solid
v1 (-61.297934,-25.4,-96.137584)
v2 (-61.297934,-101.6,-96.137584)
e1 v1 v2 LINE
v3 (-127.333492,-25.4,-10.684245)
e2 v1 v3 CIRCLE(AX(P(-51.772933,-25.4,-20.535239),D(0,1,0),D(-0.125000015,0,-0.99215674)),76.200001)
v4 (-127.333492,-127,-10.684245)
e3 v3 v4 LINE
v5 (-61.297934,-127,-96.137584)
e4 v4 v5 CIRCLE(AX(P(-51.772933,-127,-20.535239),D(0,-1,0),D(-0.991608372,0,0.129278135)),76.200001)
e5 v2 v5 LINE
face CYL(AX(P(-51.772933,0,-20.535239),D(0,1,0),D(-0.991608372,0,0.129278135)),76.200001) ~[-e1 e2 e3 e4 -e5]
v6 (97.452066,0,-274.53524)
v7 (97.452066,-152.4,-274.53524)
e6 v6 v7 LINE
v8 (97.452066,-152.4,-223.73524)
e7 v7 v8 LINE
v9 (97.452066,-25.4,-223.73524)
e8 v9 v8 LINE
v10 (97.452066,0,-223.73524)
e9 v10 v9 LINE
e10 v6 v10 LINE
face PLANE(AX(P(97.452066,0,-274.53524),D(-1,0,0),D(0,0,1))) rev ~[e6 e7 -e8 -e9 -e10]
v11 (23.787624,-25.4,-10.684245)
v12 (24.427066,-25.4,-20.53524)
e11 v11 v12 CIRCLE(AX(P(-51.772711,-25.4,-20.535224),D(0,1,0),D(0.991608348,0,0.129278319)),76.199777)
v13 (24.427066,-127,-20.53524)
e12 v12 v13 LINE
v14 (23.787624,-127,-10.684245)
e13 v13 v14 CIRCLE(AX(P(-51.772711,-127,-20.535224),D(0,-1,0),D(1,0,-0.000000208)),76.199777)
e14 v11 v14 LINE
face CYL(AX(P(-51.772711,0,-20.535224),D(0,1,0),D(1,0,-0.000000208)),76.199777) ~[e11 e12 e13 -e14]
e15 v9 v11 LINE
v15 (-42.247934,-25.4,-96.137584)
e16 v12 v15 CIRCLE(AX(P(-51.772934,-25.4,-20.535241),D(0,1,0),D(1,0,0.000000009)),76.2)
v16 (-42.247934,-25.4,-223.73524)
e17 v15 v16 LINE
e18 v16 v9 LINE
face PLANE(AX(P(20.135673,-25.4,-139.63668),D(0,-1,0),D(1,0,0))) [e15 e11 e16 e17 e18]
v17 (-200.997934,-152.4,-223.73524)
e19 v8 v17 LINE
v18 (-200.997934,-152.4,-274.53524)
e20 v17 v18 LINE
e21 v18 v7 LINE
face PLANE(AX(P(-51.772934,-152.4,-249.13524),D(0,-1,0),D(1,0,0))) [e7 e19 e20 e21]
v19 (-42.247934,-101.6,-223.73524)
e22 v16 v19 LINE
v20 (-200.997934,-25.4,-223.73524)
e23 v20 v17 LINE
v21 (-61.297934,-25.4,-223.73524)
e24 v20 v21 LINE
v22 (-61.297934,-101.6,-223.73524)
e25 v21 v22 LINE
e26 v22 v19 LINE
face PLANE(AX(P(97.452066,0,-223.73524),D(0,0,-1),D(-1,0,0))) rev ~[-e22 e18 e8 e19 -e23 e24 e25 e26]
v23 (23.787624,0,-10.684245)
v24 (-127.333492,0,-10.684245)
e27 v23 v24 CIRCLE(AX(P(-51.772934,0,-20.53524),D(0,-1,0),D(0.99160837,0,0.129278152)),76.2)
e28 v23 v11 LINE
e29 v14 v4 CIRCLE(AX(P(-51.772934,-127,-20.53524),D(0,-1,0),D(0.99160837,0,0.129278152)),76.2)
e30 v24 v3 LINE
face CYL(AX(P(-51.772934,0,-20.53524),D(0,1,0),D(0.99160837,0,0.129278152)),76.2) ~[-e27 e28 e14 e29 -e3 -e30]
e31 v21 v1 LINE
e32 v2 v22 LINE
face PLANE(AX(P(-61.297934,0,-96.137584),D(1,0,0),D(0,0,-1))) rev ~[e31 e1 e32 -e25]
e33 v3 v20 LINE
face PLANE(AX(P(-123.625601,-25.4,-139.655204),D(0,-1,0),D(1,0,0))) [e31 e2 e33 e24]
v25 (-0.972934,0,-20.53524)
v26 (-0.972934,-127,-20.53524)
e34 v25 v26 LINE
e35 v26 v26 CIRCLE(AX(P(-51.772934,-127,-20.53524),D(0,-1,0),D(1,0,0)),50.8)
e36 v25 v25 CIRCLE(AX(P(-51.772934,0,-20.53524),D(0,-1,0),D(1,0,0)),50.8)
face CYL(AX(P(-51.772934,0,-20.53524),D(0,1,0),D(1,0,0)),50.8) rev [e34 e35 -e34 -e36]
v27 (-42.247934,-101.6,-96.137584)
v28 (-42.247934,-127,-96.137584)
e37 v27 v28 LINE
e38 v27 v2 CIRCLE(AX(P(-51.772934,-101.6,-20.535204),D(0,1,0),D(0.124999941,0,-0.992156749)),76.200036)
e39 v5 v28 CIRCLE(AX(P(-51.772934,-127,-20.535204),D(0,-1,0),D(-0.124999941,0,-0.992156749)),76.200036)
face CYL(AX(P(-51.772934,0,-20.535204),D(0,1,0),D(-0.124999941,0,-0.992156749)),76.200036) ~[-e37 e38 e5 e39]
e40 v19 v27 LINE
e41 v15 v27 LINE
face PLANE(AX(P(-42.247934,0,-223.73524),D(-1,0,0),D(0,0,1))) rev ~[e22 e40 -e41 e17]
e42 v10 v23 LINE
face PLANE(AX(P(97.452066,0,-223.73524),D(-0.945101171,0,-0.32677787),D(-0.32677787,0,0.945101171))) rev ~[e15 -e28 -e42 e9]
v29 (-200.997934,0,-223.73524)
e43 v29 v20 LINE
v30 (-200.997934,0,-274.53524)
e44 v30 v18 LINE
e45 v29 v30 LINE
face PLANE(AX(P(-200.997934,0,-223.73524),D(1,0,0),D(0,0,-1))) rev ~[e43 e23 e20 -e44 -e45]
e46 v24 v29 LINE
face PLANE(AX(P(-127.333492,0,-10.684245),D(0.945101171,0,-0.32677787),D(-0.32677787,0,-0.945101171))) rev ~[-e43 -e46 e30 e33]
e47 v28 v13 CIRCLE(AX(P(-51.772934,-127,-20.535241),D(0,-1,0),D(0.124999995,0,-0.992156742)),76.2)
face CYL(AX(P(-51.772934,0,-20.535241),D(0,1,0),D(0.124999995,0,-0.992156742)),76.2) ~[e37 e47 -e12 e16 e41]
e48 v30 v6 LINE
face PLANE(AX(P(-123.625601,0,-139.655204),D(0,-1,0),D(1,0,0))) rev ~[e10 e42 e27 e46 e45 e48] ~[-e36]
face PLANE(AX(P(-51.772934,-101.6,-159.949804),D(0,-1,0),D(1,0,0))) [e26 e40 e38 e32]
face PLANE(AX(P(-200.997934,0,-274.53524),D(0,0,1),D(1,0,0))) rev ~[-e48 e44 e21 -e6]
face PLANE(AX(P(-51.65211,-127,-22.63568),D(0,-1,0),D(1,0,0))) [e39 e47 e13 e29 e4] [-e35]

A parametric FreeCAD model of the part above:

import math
import FreeCAD as App
import Part
import Sketcher
from FreeCAD import Vector
Q = App.Units.Quantity

doc = App.newDocument("Part")
params = doc.addObject("Spreadsheet::Sheet", "Params")
for row, (alias, value) in enumerate([
    ("sketch1_diameter", "4 in"),
    ("sketch1_radius", "3 in"),
    ("sketch1_radius2", "3 in"),
    ("pad1_length", "5 in"),
    ("sketch2_width", "0.75 in"),
    ("pad2_length", "4 in"),
    ("sketch3_height", "2 in"),
    ("sketch3_width", "11.75 in"),
    ("pad3_length", "6 in"),
    ("sketch4_radius", "3.0000001 in"),
    ("sketch4_width", "5.5 in"),
    ("pad4_length", "1 in"),
], start=1):
    params.set(f"A{row}", alias)
    params.set(f"B{row}", "=" + value)
    params.setAlias(f"B{row}", alias)

body = doc.addObject("PartDesign::Body", "Body")

# Sketch on XZ plane
sketch1 = doc.addObject("Sketcher::SketchObject", "Sketch")
body.addObject(sketch1)
sketch1.AttachmentSupport = (doc.XZ_Plane, [""])
sketch1.MapMode = "FlatFace"
sketch1.addGeometry(Part.ArcOfCircle(Part.Circle(Vector(-51.772934, -20.535241, 0), Vector(0, 0, 1), 76.2), math.radians(-82.819245), math.radians(0.000001)), False)
sketch1.addGeometry(Part.ArcOfCircle(Part.Circle(Vector(-51.772711, -20.535224, 0), Vector(0, 0, 1), 76.199777), math.radians(-0.000012), math.radians(7.427891)), False)
sketch1.addGeometry(Part.ArcOfCircle(Part.Circle(Vector(-51.772934, -20.53524, 0), Vector(0, 0, 1), 76.2), math.radians(7.427881), math.radians(172.572119)), False)
sketch1.addGeometry(Part.ArcOfCircle(Part.Circle(Vector(-51.772933, -20.535239, 0), Vector(0, 0, 1), 76.200001), math.radians(172.572119), math.radians(262.819243)), False)
sketch1.addGeometry(Part.ArcOfCircle(Part.Circle(Vector(-51.772934, -20.535204, 0), Vector(0, 0, 1), 76.200036), math.radians(-97.180752), math.radians(-82.819248)), False)
sketch1.addGeometry(Part.Circle(Vector(-51.772934, -20.53524, 0), Vector(0, 0, 1), 50.8), False)
sketch1.addConstraint(Sketcher.Constraint("Coincident", 0, 2, 1, 1))
sketch1.addConstraint(Sketcher.Constraint("Coincident", 1, 2, 2, 1))
sketch1.addConstraint(Sketcher.Constraint("Coincident", 2, 2, 3, 1))
sketch1.addConstraint(Sketcher.Constraint("Coincident", 3, 2, 4, 1))
sketch1.addConstraint(Sketcher.Constraint("Coincident", 4, 2, 0, 1))
sketch1.addConstraint(Sketcher.Constraint("Coincident", 2, 3, 0, 3))
sketch1.addConstraint(Sketcher.Constraint("Coincident", 3, 3, 0, 3))
sketch1.addConstraint(Sketcher.Constraint("Coincident", 5, 3, 0, 3))
sketch1.addConstraint(Sketcher.Constraint("Diameter", 5, Q("4 in")))
sketch1.addConstraint(Sketcher.Constraint("Radius", 0, Q("3 in")))
sketch1.addConstraint(Sketcher.Constraint("Radius", 2, Q("3 in")))
sketch1.addConstraint(Sketcher.Constraint("DistanceX", 3, 2, 4, 2, Q("0.75 in")))
sketch1.addConstraint(Sketcher.Constraint("DistanceX", 3, 2, 0, 3, Q("0.375 in")))
sketch1.addConstraint(Sketcher.Constraint("Radius", 1, Q("76.199777 mm")))
sketch1.addConstraint(Sketcher.Constraint("Radius", 4, Q("76.200036 mm")))
sketch1.addConstraint(Sketcher.Constraint("DistanceY", 0, 3, -1, 1, Q("20.535241 mm")))
sketch1.addConstraint(Sketcher.Constraint("DistanceX", 1, 3, -1, 1, Q("51.772711 mm")))
sketch1.addConstraint(Sketcher.Constraint("DistanceY", 0, 2, -1, 1, Q("20.53524 mm")))
sketch1.addConstraint(Sketcher.Constraint("DistanceX", 2, 2, -1, 1, Q("127.333492 mm")))
sketch1.addConstraint(Sketcher.Constraint("DistanceX", 1, 2, 0, 2, Q("0.639442 mm")))
sketch1.setExpression("Constraints[8]", "Params.sketch1_diameter")
sketch1.setExpression("Constraints[9]", "Params.sketch1_radius")
sketch1.setExpression("Constraints[10]", "Params.sketch1_radius2")
pad1 = doc.addObject("PartDesign::Pad", "Pad")
body.addObject(pad1)
pad1.Profile = sketch1
pad1.setExpression("Length", "Params.pad1_length")

# Sketch on XZ plane
sketch2 = doc.addObject("Sketcher::SketchObject", "Sketch001")
body.addObject(sketch2)
sketch2.AttachmentSupport = (doc.XZ_Plane, [""])
sketch2.MapMode = "FlatFace"
sketch2.addGeometry(Part.LineSegment(Vector(-42, -224, 0), Vector(-42, -96, 0)), False)
sketch2.addGeometry(Part.ArcOfCircle(Part.Circle(Vector(-52, -21, 0), Vector(0, 0, 1), 76), math.radians(-97.18), math.radians(-82.82)), False)
sketch2.addGeometry(Part.LineSegment(Vector(-61, -96, 0), Vector(-61, -224, 0)), False)
sketch2.addGeometry(Part.LineSegment(Vector(-61, -224, 0), Vector(-42, -224, 0)), False)
sketch2.addConstraint(Sketcher.Constraint("Coincident", 0, 2, 1, 2))
sketch2.addConstraint(Sketcher.Constraint("Coincident", 1, 1, 2, 1))
sketch2.addConstraint(Sketcher.Constraint("Coincident", 2, 2, 3, 1))
sketch2.addConstraint(Sketcher.Constraint("Coincident", 3, 2, 0, 1))
sketch2.addConstraint(Sketcher.Constraint("Vertical", 0))
sketch2.addConstraint(Sketcher.Constraint("Vertical", 2))
sketch2.addConstraint(Sketcher.Constraint("Horizontal", 3))
sketch2.addConstraint(Sketcher.Constraint("Horizontal", 0, 2, 1, 1))
sketch2.addConstraint(Sketcher.Constraint("DistanceX", 3, 1, 3, 2, Q("0.75 in")))
sketch2.addConstraint(Sketcher.Constraint("Radius", 1, Q("76.200036 mm")))
sketch2.addConstraint(Sketcher.Constraint("DistanceY", 0, 1, 0, 2, Q("127.597656 mm")))
sketch2.addConstraint(Sketcher.Constraint("DistanceY", 2, 2, -1, 1, Q("223.73524 mm")))
sketch2.addConstraint(Sketcher.Constraint("DistanceX", 1, 3, -1, 1, Q("51.772934 mm")))
sketch2.setExpression("Constraints[8]", "Params.sketch2_width")
pad2 = doc.addObject("PartDesign::Pad", "Pad001")
body.addObject(pad2)
pad2.Profile = sketch2
pad2.setExpression("Length", "Params.pad2_length")

# Sketch on XZ plane
sketch3 = doc.addObject("Sketcher::SketchObject", "Sketch002")
body.addObject(sketch3)
sketch3.AttachmentSupport = (doc.XZ_Plane, [""])
sketch3.MapMode = "FlatFace"
sketch3.addGeometry(Part.LineSegment(Vector(97, -275, 0), Vector(97, -224, 0)), False)
sketch3.addGeometry(Part.LineSegment(Vector(97, -224, 0), Vector(-201, -224, 0)), False)
sketch3.addGeometry(Part.LineSegment(Vector(-201, -224, 0), Vector(-201, -275, 0)), False)
sketch3.addGeometry(Part.LineSegment(Vector(-201, -275, 0), Vector(97, -275, 0)), False)
sketch3.addConstraint(Sketcher.Constraint("Coincident", 0, 2, 1, 1))
sketch3.addConstraint(Sketcher.Constraint("Coincident", 1, 2, 2, 1))
sketch3.addConstraint(Sketcher.Constraint("Coincident", 2, 2, 3, 1))
sketch3.addConstraint(Sketcher.Constraint("Coincident", 3, 2, 0, 1))
sketch3.addConstraint(Sketcher.Constraint("Vertical", 0))
sketch3.addConstraint(Sketcher.Constraint("Horizontal", 1))
sketch3.addConstraint(Sketcher.Constraint("Vertical", 2))
sketch3.addConstraint(Sketcher.Constraint("Horizontal", 3))
sketch3.addConstraint(Sketcher.Constraint("DistanceY", 0, 1, 0, 2, Q("2 in")))
sketch3.addConstraint(Sketcher.Constraint("DistanceX", 1, 2, 1, 1, Q("11.75 in")))
sketch3.addConstraint(Sketcher.Constraint("DistanceY", 0, 2, -1, 1, Q("223.73524 mm")))
sketch3.addConstraint(Sketcher.Constraint("DistanceX", -1, 1, 0, 2, Q("97.452066 mm")))
sketch3.setExpression("Constraints[8]", "Params.sketch3_height")
sketch3.setExpression("Constraints[9]", "Params.sketch3_width")
pad3 = doc.addObject("PartDesign::Pad", "Pad002")
body.addObject(pad3)
pad3.Profile = sketch3
pad3.setExpression("Length", "Params.pad3_length")

# Sketch on XZ plane
sketch4 = doc.addObject("Sketcher::SketchObject", "Sketch003")
body.addObject(sketch4)
sketch4.AttachmentSupport = (doc.XZ_Plane, [""])
sketch4.MapMode = "FlatFace"
sketch4.addGeometry(Part.ArcOfCircle(Part.Circle(Vector(-52, -21, 0), Vector(0, 0, 1), 76), math.radians(173), math.radians(263)), False)
sketch4.addGeometry(Part.LineSegment(Vector(-127, -11, 0), Vector(-201, -224, 0)), False)
sketch4.addGeometry(Part.LineSegment(Vector(-201, -224, 0), Vector(-61, -224, 0)), False)
sketch4.addGeometry(Part.LineSegment(Vector(-61, -224, 0), Vector(-61, -96, 0)), False)
sketch4.addGeometry(Part.ArcOfCircle(Part.Circle(Vector(-52, -21, 0), Vector(0, 0, 1), 76), math.radians(0), math.radians(7.43)), False)
sketch4.addGeometry(Part.ArcOfCircle(Part.Circle(Vector(-52, -21, 0), Vector(0, 0, 1), 76), math.radians(-83), math.radians(0)), False)
sketch4.addGeometry(Part.LineSegment(Vector(-42, -96, 0), Vector(-42, -224, 0)), False)
sketch4.addGeometry(Part.LineSegment(Vector(-42, -224, 0), Vector(97, -224, 0)), False)
sketch4.addGeometry(Part.LineSegment(Vector(97, -224, 0), Vector(24, -11, 0)), False)
sketch4.addConstraint(Sketcher.Constraint("Coincident", 0, 1, 1, 1))
sketch4.addConstraint(Sketcher.Constraint("Coincident", 1, 2, 2, 1))
sketch4.addConstraint(Sketcher.Constraint("Coincident", 2, 2, 3, 1))
sketch4.addConstraint(Sketcher.Constraint("Coincident", 3, 2, 0, 2))
sketch4.addConstraint(Sketcher.Constraint("Tangent", 4, 1, 5, 2))
sketch4.addConstraint(Sketcher.Constraint("Coincident", 5, 1, 6, 1))
sketch4.addConstraint(Sketcher.Constraint("Coincident", 6, 2, 7, 1))
sketch4.addConstraint(Sketcher.Constraint("Coincident", 7, 2, 8, 1))
sketch4.addConstraint(Sketcher.Constraint("Coincident", 8, 2, 4, 2))
sketch4.addConstraint(Sketcher.Constraint("Horizontal", 2))
sketch4.addConstraint(Sketcher.Constraint("Vertical", 3))
sketch4.addConstraint(Sketcher.Constraint("Vertical", 6))
sketch4.addConstraint(Sketcher.Constraint("Horizontal", 7))
sketch4.addConstraint(Sketcher.Constraint("Coincident", 5, 3, 0, 3))
sketch4.addConstraint(Sketcher.Constraint("Equal", 0, 5))
sketch4.addConstraint(Sketcher.Constraint("Horizontal", 5, 3, 4, 1))
sketch4.addConstraint(Sketcher.Constraint("Horizontal", 3, 2, 5, 1))
sketch4.addConstraint(Sketcher.Constraint("Horizontal", 2, 2, 6, 2))
sketch4.addConstraint(Sketcher.Constraint("Horizontal", 0, 1, 8, 2))
sketch4.addConstraint(Sketcher.Constraint("Equal", 2, 7))
sketch4.addConstraint(Sketcher.Constraint("Radius", 0, Q("3.0000001 in")))
sketch4.addConstraint(Sketcher.Constraint("DistanceX", 2, 1, 2, 2, Q("5.5 in")))
sketch4.addConstraint(Sketcher.Constraint("DistanceY", 1, 2, 5, 3, Q("8 in")))
sketch4.addConstraint(Sketcher.Constraint("DistanceX", 3, 2, 5, 1, Q("0.75 in")))
sketch4.addConstraint(Sketcher.Constraint("Radius", 4, Q("76.199777 mm")))
sketch4.addConstraint(Sketcher.Constraint("DistanceY", 0, 3, -1, 1, Q("20.535239 mm")))
sketch4.addConstraint(Sketcher.Constraint("DistanceX", 4, 3, -1, 1, Q("51.772711 mm")))
sketch4.addConstraint(Sketcher.Constraint("DistanceX", 0, 1, 5, 3, Q("75.560558 mm")))
sketch4.setExpression("Constraints[20]", "Params.sketch4_radius")
sketch4.setExpression("Constraints[21]", "Params.sketch4_width")
pad4 = doc.addObject("PartDesign::Pad", "Pad003")
body.addObject(pad4)
pad4.Profile = sketch4
pad4.setExpression("Length", "Params.pad4_length")

doc.recompute()
